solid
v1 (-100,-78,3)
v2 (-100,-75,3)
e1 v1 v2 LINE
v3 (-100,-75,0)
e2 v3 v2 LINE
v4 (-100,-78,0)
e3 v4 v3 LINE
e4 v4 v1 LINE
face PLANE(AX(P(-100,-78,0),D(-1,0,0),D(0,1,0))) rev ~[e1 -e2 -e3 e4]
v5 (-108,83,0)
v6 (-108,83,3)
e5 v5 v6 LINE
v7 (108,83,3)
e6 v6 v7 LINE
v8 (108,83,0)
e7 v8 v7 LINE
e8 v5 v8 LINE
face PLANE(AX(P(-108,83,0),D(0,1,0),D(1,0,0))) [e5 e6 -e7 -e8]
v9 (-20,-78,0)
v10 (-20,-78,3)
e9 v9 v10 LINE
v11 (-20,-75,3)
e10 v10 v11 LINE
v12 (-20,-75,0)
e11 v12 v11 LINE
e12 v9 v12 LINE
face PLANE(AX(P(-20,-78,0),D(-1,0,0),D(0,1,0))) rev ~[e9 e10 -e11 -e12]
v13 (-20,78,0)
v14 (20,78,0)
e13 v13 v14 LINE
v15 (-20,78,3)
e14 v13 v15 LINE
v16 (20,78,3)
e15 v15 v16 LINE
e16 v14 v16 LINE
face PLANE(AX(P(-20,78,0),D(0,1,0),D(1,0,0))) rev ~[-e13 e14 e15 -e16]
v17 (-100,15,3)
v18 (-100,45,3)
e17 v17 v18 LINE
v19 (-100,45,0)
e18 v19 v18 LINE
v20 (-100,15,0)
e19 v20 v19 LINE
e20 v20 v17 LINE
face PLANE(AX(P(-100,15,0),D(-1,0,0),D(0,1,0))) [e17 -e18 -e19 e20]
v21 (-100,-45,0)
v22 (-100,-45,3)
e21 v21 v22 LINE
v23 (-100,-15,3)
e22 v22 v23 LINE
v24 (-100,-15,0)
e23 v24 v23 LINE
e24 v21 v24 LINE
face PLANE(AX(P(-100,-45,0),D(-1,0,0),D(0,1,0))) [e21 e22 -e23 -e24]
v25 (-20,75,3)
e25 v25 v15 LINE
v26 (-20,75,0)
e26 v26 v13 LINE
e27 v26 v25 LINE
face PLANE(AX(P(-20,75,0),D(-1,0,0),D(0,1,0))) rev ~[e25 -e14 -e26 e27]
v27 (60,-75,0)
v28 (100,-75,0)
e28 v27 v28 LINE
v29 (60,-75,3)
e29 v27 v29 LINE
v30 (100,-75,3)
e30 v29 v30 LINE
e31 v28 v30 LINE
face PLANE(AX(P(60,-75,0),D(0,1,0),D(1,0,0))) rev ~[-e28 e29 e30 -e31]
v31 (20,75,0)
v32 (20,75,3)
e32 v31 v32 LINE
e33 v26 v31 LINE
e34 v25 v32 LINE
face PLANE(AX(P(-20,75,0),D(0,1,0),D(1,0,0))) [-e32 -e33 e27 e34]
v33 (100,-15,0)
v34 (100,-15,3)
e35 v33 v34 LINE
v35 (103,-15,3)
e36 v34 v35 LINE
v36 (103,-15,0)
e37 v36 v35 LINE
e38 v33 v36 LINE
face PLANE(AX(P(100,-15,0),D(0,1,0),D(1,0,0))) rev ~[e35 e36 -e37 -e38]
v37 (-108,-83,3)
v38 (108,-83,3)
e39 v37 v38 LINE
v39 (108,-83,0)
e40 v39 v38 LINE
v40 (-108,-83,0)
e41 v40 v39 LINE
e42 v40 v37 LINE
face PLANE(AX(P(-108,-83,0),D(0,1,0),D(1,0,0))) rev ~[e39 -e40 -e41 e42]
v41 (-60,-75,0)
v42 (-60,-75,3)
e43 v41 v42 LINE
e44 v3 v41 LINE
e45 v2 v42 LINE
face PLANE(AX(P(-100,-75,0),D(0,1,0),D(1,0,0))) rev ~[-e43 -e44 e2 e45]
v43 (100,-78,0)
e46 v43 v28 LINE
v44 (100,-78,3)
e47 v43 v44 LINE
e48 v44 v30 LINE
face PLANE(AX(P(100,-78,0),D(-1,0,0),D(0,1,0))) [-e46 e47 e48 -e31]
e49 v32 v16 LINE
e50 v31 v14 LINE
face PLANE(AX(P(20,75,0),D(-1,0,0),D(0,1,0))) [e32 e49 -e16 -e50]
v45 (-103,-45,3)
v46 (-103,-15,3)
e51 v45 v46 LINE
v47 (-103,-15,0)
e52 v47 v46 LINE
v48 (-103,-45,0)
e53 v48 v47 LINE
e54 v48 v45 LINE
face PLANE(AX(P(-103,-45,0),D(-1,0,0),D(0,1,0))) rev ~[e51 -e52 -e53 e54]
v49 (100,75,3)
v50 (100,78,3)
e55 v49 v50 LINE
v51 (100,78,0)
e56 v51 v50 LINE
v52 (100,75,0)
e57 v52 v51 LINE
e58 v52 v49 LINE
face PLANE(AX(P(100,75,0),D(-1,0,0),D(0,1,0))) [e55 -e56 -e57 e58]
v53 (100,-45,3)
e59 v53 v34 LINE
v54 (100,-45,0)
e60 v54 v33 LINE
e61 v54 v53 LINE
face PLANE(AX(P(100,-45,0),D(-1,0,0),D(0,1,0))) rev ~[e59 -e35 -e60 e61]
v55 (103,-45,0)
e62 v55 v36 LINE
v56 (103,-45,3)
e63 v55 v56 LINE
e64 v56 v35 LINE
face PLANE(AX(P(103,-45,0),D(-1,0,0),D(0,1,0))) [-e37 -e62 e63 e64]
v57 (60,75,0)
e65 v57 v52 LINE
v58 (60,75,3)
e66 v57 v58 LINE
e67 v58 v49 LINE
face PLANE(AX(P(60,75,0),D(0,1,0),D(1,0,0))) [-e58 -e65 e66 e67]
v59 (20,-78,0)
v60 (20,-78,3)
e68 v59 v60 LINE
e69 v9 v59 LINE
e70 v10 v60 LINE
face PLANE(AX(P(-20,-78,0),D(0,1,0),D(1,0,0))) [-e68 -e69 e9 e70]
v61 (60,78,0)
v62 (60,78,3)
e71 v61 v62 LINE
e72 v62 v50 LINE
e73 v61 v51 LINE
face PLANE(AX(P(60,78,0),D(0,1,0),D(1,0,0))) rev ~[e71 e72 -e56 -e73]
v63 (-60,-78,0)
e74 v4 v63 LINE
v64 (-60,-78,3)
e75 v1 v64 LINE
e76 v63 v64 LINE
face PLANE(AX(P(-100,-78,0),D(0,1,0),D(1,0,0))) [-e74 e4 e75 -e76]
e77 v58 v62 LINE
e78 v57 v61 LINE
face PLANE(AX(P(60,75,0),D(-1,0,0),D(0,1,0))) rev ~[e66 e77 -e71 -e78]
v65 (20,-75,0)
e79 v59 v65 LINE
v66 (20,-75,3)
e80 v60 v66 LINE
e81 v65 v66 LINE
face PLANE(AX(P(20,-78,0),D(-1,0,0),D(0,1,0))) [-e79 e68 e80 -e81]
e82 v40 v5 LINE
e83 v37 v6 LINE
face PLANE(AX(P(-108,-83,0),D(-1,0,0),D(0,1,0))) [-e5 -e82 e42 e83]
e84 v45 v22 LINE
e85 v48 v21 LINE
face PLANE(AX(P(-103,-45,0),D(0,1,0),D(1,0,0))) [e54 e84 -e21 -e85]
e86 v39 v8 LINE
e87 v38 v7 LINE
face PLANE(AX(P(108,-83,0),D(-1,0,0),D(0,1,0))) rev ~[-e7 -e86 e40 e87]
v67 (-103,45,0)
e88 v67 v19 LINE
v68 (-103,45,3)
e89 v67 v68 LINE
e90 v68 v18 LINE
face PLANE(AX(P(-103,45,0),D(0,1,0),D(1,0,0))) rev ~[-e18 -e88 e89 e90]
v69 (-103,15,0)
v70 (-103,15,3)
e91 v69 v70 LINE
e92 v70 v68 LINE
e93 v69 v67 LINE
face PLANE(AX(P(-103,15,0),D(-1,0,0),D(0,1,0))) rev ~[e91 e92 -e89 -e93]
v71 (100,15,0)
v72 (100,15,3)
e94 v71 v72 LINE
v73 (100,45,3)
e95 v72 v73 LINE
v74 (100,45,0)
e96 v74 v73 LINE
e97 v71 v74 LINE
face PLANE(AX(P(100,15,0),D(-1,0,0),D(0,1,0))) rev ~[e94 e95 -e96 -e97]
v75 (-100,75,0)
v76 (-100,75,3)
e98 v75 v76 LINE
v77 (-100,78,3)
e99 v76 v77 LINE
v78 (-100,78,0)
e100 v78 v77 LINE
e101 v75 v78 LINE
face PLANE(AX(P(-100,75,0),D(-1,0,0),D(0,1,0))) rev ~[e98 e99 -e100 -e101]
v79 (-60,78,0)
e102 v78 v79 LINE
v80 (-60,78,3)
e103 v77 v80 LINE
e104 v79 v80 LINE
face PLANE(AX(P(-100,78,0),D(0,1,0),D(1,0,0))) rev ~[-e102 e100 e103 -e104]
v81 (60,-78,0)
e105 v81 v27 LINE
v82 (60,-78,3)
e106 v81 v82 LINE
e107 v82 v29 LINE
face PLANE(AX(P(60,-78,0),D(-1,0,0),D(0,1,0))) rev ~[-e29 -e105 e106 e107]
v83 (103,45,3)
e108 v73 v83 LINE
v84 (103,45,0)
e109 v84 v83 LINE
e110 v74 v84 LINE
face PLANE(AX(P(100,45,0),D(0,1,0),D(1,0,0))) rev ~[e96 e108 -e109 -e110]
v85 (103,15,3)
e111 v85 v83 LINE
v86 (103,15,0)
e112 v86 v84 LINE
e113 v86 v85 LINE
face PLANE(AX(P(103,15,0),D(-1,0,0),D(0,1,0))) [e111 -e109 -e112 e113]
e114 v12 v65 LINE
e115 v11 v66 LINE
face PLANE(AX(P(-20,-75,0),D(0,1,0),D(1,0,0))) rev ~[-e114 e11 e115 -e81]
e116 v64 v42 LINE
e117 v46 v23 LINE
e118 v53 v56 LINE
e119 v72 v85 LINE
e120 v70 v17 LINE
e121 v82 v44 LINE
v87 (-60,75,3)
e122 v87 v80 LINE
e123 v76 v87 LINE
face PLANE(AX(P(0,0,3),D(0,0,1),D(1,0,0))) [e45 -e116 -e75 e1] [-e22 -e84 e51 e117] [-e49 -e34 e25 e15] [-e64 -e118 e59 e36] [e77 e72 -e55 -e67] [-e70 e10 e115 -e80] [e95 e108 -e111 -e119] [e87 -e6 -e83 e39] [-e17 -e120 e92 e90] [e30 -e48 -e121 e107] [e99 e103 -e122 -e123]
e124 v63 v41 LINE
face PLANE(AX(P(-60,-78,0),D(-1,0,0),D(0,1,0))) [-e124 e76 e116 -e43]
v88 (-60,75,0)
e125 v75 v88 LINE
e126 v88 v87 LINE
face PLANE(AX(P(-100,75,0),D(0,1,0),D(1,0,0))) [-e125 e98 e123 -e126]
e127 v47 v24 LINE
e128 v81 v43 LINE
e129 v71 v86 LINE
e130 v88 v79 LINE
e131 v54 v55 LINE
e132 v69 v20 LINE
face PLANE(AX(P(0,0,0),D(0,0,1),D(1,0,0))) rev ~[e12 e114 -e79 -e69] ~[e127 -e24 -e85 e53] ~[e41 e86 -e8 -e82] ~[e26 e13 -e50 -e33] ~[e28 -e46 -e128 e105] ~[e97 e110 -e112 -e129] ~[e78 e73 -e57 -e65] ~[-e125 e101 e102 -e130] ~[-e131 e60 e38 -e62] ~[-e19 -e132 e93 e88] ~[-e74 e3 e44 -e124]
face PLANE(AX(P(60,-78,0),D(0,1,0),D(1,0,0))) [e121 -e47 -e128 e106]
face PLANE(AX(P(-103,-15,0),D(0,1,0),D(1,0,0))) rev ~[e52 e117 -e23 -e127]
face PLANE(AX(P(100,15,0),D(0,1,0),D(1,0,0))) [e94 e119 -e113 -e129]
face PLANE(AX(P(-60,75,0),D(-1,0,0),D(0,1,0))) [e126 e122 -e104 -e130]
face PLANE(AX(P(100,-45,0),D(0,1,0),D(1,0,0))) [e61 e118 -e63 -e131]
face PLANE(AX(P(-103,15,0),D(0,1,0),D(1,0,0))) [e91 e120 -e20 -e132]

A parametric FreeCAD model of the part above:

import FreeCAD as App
import Part
import Sketcher

V = App.Vector
Q = App.Units.Quantity

doc = App.newDocument("Part")
body = doc.addObject("PartDesign::Body", "Body")

# Sketch on XY plane
sketch1 = doc.addObject("Sketcher::SketchObject", "Sketch")
body.addObject(sketch1)
sketch1.AttachmentSupport = (doc.XY_Plane, [""])
sketch1.MapMode = "FlatFace"
sketch1.addGeometry(Part.LineSegment(V(-108, 83, 0), V(-108, -83, 0)), False)
sketch1.addGeometry(Part.LineSegment(V(-108, -83, 0), V(108, -83, 0)), False)
sketch1.addGeometry(Part.LineSegment(V(108, -83, 0), V(108, 83, 0)), False)
sketch1.addGeometry(Part.LineSegment(V(108, 83, 0), V(-108, 83, 0)), False)
sketch1.addGeometry(Part.LineSegment(V(-60, -78, 0), V(-100, -78, 0)), False)
sketch1.addGeometry(Part.LineSegment(V(-100, -78, 0), V(-100, -75, 0)), False)
sketch1.addGeometry(Part.LineSegment(V(-100, -75, 0), V(-60, -75, 0)), False)
sketch1.addGeometry(Part.LineSegment(V(-60, -75, 0), V(-60, -78, 0)), False)
sketch1.addGeometry(Part.LineSegment(V(20, -78, 0), V(-20, -78, 0)), False)
sketch1.addGeometry(Part.LineSegment(V(-20, -78, 0), V(-20, -75, 0)), False)
sketch1.addGeometry(Part.LineSegment(V(-20, -75, 0), V(20, -75, 0)), False)
sketch1.addGeometry(Part.LineSegment(V(20, -75, 0), V(20, -78, 0)), False)
sketch1.addGeometry(Part.LineSegment(V(-100, -45, 0), V(-103, -45, 0)), False)
sketch1.addGeometry(Part.LineSegment(V(-103, -45, 0), V(-103, -15, 0)), False)
sketch1.addGeometry(Part.LineSegment(V(-103, -15, 0), V(-100, -15, 0)), False)
sketch1.addGeometry(Part.LineSegment(V(-100, -15, 0), V(-100, -45, 0)), False)
sketch1.addGeometry(Part.LineSegment(V(100, -78, 0), V(60, -78, 0)), False)
sketch1.addGeometry(Part.LineSegment(V(60, -78, 0), V(60, -75, 0)), False)
sketch1.addGeometry(Part.LineSegment(V(60, -75, 0), V(100, -75, 0)), False)
sketch1.addGeometry(Part.LineSegment(V(100, -75, 0), V(100, -78, 0)), False)
sketch1.addGeometry(Part.LineSegment(V(103, -45, 0), V(100, -45, 0)), False)
sketch1.addGeometry(Part.LineSegment(V(100, -45, 0), V(100, -15, 0)), False)
sketch1.addGeometry(Part.LineSegment(V(100, -15, 0), V(103, -15, 0)), False)
sketch1.addGeometry(Part.LineSegment(V(103, -15, 0), V(103, -45, 0)), False)
sketch1.addGeometry(Part.LineSegment(V(-100, 15, 0), V(-103, 15, 0)), False)
sketch1.addGeometry(Part.LineSegment(V(-103, 15, 0), V(-103, 45, 0)), False)
sketch1.addGeometry(Part.LineSegment(V(-103, 45, 0), V(-100, 45, 0)), False)
sketch1.addGeometry(Part.LineSegment(V(-100, 45, 0), V(-100, 15, 0)), False)
sketch1.addGeometry(Part.LineSegment(V(-60, 75, 0), V(-100, 75, 0)), False)
sketch1.addGeometry(Part.LineSegment(V(-100, 75, 0), V(-100, 78, 0)), False)
sketch1.addGeometry(Part.LineSegment(V(-100, 78, 0), V(-60, 78, 0)), False)
sketch1.addGeometry(Part.LineSegment(V(-60, 78, 0), V(-60, 75, 0)), False)
sketch1.addGeometry(Part.LineSegment(V(20, 75, 0), V(-20, 75, 0)), False)
sketch1.addGeometry(Part.LineSegment(V(-20, 75, 0), V(-20, 78, 0)), False)
sketch1.addGeometry(Part.LineSegment(V(-20, 78, 0), V(20, 78, 0)), False)
sketch1.addGeometry(Part.LineSegment(V(20, 78, 0), V(20, 75, 0)), False)
sketch1.addGeometry(Part.LineSegment(V(103, 15, 0), V(100, 15, 0)), False)
sketch1.addGeometry(Part.LineSegment(V(100, 15, 0), V(100, 45, 0)), False)
sketch1.addGeometry(Part.LineSegment(V(100, 45, 0), V(103, 45, 0)), False)
sketch1.addGeometry(Part.LineSegment(V(103, 45, 0), V(103, 15, 0)), False)
sketch1.addGeometry(Part.LineSegment(V(100, 75, 0), V(60, 75, 0)), False)
sketch1.addGeometry(Part.LineSegment(V(60, 75, 0), V(60, 78, 0)), False)
sketch1.addGeometry(Part.LineSegment(V(60, 78, 0), V(100, 78, 0)), False)
sketch1.addGeometry(Part.LineSegment(V(100, 78, 0), V(100, 75, 0)), False)
sketch1.addConstraint(Sketcher.Constraint("Coincident", 0, 2, 1, 1))
sketch1.addConstraint(Sketcher.Constraint("Coincident", 1, 2, 2, 1))
sketch1.addConstraint(Sketcher.Constraint("Coincident", 2, 2, 3, 1))
sketch1.addConstraint(Sketcher.Constraint("Coincident", 3, 2, 0, 1))
sketch1.addConstraint(Sketcher.Constraint("Coincident", 4, 2, 5, 1))
sketch1.addConstraint(Sketcher.Constraint("Coincident", 5, 2, 6, 1))
sketch1.addConstraint(Sketcher.Constraint("Coincident", 6, 2, 7, 1))
sketch1.addConstraint(Sketcher.Constraint("Coincident", 7, 2, 4, 1))
sketch1.addConstraint(Sketcher.Constraint("Coincident", 8, 2, 9, 1))
sketch1.addConstraint(Sketcher.Constraint("Coincident", 9, 2, 10, 1))
sketch1.addConstraint(Sketcher.Constraint("Coincident", 10, 2, 11, 1))
sketch1.addConstraint(Sketcher.Constraint("Coincident", 11, 2, 8, 1))
sketch1.addConstraint(Sketcher.Constraint("Coincident", 12, 2, 13, 1))
sketch1.addConstraint(Sketcher.Constraint("Coincident", 13, 2, 14, 1))
sketch1.addConstraint(Sketcher.Constraint("Coincident", 14, 2, 15, 1))
sketch1.addConstraint(Sketcher.Constraint("Coincident", 15, 2, 12, 1))
sketch1.addConstraint(Sketcher.Constraint("Coincident", 16, 2, 17, 1))
sketch1.addConstraint(Sketcher.Constraint("Coincident", 17, 2, 18, 1))
sketch1.addConstraint(Sketcher.Constraint("Coincident", 18, 2, 19, 1))
sketch1.addConstraint(Sketcher.Constraint("Coincident", 19, 2, 16, 1))
sketch1.addConstraint(Sketcher.Constraint("Coincident", 20, 2, 21, 1))
sketch1.addConstraint(Sketcher.Constraint("Coincident", 21, 2, 22, 1))
sketch1.addConstraint(Sketcher.Constraint("Coincident", 22, 2, 23, 1))
sketch1.addConstraint(Sketcher.Constraint("Coincident", 23, 2, 20, 1))
sketch1.addConstraint(Sketcher.Constraint("Coincident", 24, 2, 25, 1))
sketch1.addConstraint(Sketcher.Constraint("Coincident", 25, 2, 26, 1))
sketch1.addConstraint(Sketcher.Constraint("Coincident", 26, 2, 27, 1))
sketch1.addConstraint(Sketcher.Constraint("Coincident", 27, 2, 24, 1))
sketch1.addConstraint(Sketcher.Constraint("Coincident", 28, 2, 29, 1))
sketch1.addConstraint(Sketcher.Constraint("Coincident", 29, 2, 30, 1))
sketch1.addConstraint(Sketcher.Constraint("Coincident", 30, 2, 31, 1))
sketch1.addConstraint(Sketcher.Constraint("Coincident", 31, 2, 28, 1))
sketch1.addConstraint(Sketcher.Constraint("Coincident", 32, 2, 33, 1))
sketch1.addConstraint(Sketcher.Constraint("Coincident", 33, 2, 34, 1))
sketch1.addConstraint(Sketcher.Constraint("Coincident", 34, 2, 35, 1))
sketch1.addConstraint(Sketcher.Constraint("Coincident", 35, 2, 32, 1))
sketch1.addConstraint(Sketcher.Constraint("Coincident", 36, 2, 37, 1))
sketch1.addConstraint(Sketcher.Constraint("Coincident", 37, 2, 38, 1))
sketch1.addConstraint(Sketcher.Constraint("Coincident", 38, 2, 39, 1))
sketch1.addConstraint(Sketcher.Constraint("Coincident", 39, 2, 36, 1))
sketch1.addConstraint(Sketcher.Constraint("Coincident", 40, 2, 41, 1))
sketch1.addConstraint(Sketcher.Constraint("Coincident", 41, 2, 42, 1))
sketch1.addConstraint(Sketcher.Constraint("Coincident", 42, 2, 43, 1))
sketch1.addConstraint(Sketcher.Constraint("Coincident", 43, 2, 40, 1))
sketch1.addConstraint(Sketcher.Constraint("Vertical", 0))
sketch1.addConstraint(Sketcher.Constraint("Horizontal", 1))
sketch1.addConstraint(Sketcher.Constraint("Vertical", 2))
sketch1.addConstraint(Sketcher.Constraint("Horizontal", 3))
sketch1.addConstraint(Sketcher.Constraint("Horizontal", 4))
sketch1.addConstraint(Sketcher.Constraint("Vertical", 5))
sketch1.addConstraint(Sketcher.Constraint("Horizontal", 6))
sketch1.addConstraint(Sketcher.Constraint("Vertical", 7))
sketch1.addConstraint(Sketcher.Constraint("Horizontal", 8))
sketch1.addConstraint(Sketcher.Constraint("Vertical", 9))
sketch1.addConstraint(Sketcher.Constraint("Horizontal", 10))
sketch1.addConstraint(Sketcher.Constraint("Vertical", 11))
sketch1.addConstraint(Sketcher.Constraint("Horizontal", 12))
sketch1.addConstraint(Sketcher.Constraint("Vertical", 13))
sketch1.addConstraint(Sketcher.Constraint("Horizontal", 14))
sketch1.addConstraint(Sketcher.Constraint("Vertical", 15))
sketch1.addConstraint(Sketcher.Constraint("Horizontal", 16))
sketch1.addConstraint(Sketcher.Constraint("Vertical", 17))
sketch1.addConstraint(Sketcher.Constraint("Horizontal", 18))
sketch1.addConstraint(Sketcher.Constraint("Vertical", 19))
sketch1.addConstraint(Sketcher.Constraint("Horizontal", 20))
sketch1.addConstraint(Sketcher.Constraint("Vertical", 21))
sketch1.addConstraint(Sketcher.Constraint("Horizontal", 22))
sketch1.addConstraint(Sketcher.Constraint("Vertical", 23))
sketch1.addConstraint(Sketcher.Constraint("Horizontal", 24))
sketch1.addConstraint(Sketcher.Constraint("Vertical", 25))
sketch1.addConstraint(Sketcher.Constraint("Horizontal", 26))
sketch1.addConstraint(Sketcher.Constraint("Vertical", 27))
sketch1.addConstraint(Sketcher.Constraint("Horizontal", 28))
sketch1.addConstraint(Sketcher.Constraint("Vertical", 29))
sketch1.addConstraint(Sketcher.Constraint("Horizontal", 30))
sketch1.addConstraint(Sketcher.Constraint("Vertical", 31))
sketch1.addConstraint(Sketcher.Constraint("Horizontal", 32))
sketch1.addConstraint(Sketcher.Constraint("Vertical", 33))
sketch1.addConstraint(Sketcher.Constraint("Horizontal", 34))
sketch1.addConstraint(Sketcher.Constraint("Vertical", 35))
sketch1.addConstraint(Sketcher.Constraint("Horizontal", 36))
sketch1.addConstraint(Sketcher.Constraint("Vertical", 37))
sketch1.addConstraint(Sketcher.Constraint("Horizontal", 38))
sketch1.addConstraint(Sketcher.Constraint("Vertical", 39))
sketch1.addConstraint(Sketcher.Constraint("Horizontal", 40))
sketch1.addConstraint(Sketcher.Constraint("Vertical", 41))
sketch1.addConstraint(Sketcher.Constraint("Horizontal", 42))
sketch1.addConstraint(Sketcher.Constraint("Vertical", 43))
sketch1.addConstraint(Sketcher.Constraint("Symmetric", 0, 2, 2, 2, -1, 1))
sketch1.addConstraint(Sketcher.Constraint("Symmetric", 22, 2, 24, 2, -1, 1))
sketch1.addConstraint(Sketcher.Constraint("Symmetric", 20, 2, 26, 2, -1, 1))
sketch1.addConstraint(Sketcher.Constraint("Symmetric", 18, 2, 28, 2, -1, 1))
sketch1.addConstraint(Sketcher.Constraint("Symmetric", 16, 2, 30, 2, -1, 1))
sketch1.addConstraint(Sketcher.Constraint("Symmetric", 10, 2, 32, 2, -1, 1))
sketch1.addConstraint(Sketcher.Constraint("Symmetric", 8, 2, 34, 2, -1, 1))
sketch1.addConstraint(Sketcher.Constraint("Symmetric", 14, 2, 36, 2, -1, 1))
sketch1.addConstraint(Sketcher.Constraint("Symmetric", 12, 2, 38, 2, -1, 1))
sketch1.addConstraint(Sketcher.Constraint("Symmetric", 6, 2, 40, 2, -1, 1))
sketch1.addConstraint(Sketcher.Constraint("Symmetric", 4, 2, 42, 2, -1, 1))
sketch1.addConstraint(Sketcher.Constraint("Symmetric", 7, 2, 16, 2, -2))
sketch1.addConstraint(Sketcher.Constraint("Symmetric", 5, 2, 18, 2, -2))
sketch1.addConstraint(Sketcher.Constraint("Symmetric", 15, 2, 20, 2, -2))
sketch1.addConstraint(Sketcher.Constraint("Symmetric", 13, 2, 22, 2, -2))
sketch1.addConstraint(Sketcher.Constraint("Horizontal", 7, 2, 8, 2))
sketch1.addConstraint(Sketcher.Constraint("Horizontal", 6, 2, 9, 2))
sketch1.addConstraint(Sketcher.Constraint("Vertical", 5, 2, 14, 2))
sketch1.addConstraint(Sketcher.Constraint("Vertical", 9, 2, 32, 2))
sketch1.addConstraint(Sketcher.Constraint("Equal", 6, 8))
sketch1.addConstraint(Sketcher.Constraint("Equal", 38, 5))
sketch1.addConstraint(Sketcher.Constraint("DistanceX", 1, 1, 1, 2, Q("216 mm")))
sketch1.addConstraint(Sketcher.Constraint("DistanceX", 4, 2, 4, 1, Q("40 mm")))
sketch1.addConstraint(Sketcher.Constraint("DistanceX", 12, 2, 12, 1, Q("3 mm")))
sketch1.addConstraint(Sketcher.Constraint("DistanceY", 0, 2, 0, 1, Q("166 mm")))
sketch1.addConstraint(Sketcher.Constraint("DistanceY", 13, 1, 13, 2, Q("30 mm")))
sketch1.addConstraint(Sketcher.Constraint("DistanceX", 4, 2, -1, 1, Q("100 mm")))
sketch1.addConstraint(Sketcher.Constraint("DistanceY", 4, 2, -1, 1, Q("78 mm")))
sketch1.addConstraint(Sketcher.Constraint("DistanceY", 12, 2, -1, 1, Q("45 mm")))
pad1 = doc.addObject("PartDesign::Pad", "Pad")
body.addObject(pad1)
pad1.Profile = sketch1
pad1.Length = 3

doc.recompute()
